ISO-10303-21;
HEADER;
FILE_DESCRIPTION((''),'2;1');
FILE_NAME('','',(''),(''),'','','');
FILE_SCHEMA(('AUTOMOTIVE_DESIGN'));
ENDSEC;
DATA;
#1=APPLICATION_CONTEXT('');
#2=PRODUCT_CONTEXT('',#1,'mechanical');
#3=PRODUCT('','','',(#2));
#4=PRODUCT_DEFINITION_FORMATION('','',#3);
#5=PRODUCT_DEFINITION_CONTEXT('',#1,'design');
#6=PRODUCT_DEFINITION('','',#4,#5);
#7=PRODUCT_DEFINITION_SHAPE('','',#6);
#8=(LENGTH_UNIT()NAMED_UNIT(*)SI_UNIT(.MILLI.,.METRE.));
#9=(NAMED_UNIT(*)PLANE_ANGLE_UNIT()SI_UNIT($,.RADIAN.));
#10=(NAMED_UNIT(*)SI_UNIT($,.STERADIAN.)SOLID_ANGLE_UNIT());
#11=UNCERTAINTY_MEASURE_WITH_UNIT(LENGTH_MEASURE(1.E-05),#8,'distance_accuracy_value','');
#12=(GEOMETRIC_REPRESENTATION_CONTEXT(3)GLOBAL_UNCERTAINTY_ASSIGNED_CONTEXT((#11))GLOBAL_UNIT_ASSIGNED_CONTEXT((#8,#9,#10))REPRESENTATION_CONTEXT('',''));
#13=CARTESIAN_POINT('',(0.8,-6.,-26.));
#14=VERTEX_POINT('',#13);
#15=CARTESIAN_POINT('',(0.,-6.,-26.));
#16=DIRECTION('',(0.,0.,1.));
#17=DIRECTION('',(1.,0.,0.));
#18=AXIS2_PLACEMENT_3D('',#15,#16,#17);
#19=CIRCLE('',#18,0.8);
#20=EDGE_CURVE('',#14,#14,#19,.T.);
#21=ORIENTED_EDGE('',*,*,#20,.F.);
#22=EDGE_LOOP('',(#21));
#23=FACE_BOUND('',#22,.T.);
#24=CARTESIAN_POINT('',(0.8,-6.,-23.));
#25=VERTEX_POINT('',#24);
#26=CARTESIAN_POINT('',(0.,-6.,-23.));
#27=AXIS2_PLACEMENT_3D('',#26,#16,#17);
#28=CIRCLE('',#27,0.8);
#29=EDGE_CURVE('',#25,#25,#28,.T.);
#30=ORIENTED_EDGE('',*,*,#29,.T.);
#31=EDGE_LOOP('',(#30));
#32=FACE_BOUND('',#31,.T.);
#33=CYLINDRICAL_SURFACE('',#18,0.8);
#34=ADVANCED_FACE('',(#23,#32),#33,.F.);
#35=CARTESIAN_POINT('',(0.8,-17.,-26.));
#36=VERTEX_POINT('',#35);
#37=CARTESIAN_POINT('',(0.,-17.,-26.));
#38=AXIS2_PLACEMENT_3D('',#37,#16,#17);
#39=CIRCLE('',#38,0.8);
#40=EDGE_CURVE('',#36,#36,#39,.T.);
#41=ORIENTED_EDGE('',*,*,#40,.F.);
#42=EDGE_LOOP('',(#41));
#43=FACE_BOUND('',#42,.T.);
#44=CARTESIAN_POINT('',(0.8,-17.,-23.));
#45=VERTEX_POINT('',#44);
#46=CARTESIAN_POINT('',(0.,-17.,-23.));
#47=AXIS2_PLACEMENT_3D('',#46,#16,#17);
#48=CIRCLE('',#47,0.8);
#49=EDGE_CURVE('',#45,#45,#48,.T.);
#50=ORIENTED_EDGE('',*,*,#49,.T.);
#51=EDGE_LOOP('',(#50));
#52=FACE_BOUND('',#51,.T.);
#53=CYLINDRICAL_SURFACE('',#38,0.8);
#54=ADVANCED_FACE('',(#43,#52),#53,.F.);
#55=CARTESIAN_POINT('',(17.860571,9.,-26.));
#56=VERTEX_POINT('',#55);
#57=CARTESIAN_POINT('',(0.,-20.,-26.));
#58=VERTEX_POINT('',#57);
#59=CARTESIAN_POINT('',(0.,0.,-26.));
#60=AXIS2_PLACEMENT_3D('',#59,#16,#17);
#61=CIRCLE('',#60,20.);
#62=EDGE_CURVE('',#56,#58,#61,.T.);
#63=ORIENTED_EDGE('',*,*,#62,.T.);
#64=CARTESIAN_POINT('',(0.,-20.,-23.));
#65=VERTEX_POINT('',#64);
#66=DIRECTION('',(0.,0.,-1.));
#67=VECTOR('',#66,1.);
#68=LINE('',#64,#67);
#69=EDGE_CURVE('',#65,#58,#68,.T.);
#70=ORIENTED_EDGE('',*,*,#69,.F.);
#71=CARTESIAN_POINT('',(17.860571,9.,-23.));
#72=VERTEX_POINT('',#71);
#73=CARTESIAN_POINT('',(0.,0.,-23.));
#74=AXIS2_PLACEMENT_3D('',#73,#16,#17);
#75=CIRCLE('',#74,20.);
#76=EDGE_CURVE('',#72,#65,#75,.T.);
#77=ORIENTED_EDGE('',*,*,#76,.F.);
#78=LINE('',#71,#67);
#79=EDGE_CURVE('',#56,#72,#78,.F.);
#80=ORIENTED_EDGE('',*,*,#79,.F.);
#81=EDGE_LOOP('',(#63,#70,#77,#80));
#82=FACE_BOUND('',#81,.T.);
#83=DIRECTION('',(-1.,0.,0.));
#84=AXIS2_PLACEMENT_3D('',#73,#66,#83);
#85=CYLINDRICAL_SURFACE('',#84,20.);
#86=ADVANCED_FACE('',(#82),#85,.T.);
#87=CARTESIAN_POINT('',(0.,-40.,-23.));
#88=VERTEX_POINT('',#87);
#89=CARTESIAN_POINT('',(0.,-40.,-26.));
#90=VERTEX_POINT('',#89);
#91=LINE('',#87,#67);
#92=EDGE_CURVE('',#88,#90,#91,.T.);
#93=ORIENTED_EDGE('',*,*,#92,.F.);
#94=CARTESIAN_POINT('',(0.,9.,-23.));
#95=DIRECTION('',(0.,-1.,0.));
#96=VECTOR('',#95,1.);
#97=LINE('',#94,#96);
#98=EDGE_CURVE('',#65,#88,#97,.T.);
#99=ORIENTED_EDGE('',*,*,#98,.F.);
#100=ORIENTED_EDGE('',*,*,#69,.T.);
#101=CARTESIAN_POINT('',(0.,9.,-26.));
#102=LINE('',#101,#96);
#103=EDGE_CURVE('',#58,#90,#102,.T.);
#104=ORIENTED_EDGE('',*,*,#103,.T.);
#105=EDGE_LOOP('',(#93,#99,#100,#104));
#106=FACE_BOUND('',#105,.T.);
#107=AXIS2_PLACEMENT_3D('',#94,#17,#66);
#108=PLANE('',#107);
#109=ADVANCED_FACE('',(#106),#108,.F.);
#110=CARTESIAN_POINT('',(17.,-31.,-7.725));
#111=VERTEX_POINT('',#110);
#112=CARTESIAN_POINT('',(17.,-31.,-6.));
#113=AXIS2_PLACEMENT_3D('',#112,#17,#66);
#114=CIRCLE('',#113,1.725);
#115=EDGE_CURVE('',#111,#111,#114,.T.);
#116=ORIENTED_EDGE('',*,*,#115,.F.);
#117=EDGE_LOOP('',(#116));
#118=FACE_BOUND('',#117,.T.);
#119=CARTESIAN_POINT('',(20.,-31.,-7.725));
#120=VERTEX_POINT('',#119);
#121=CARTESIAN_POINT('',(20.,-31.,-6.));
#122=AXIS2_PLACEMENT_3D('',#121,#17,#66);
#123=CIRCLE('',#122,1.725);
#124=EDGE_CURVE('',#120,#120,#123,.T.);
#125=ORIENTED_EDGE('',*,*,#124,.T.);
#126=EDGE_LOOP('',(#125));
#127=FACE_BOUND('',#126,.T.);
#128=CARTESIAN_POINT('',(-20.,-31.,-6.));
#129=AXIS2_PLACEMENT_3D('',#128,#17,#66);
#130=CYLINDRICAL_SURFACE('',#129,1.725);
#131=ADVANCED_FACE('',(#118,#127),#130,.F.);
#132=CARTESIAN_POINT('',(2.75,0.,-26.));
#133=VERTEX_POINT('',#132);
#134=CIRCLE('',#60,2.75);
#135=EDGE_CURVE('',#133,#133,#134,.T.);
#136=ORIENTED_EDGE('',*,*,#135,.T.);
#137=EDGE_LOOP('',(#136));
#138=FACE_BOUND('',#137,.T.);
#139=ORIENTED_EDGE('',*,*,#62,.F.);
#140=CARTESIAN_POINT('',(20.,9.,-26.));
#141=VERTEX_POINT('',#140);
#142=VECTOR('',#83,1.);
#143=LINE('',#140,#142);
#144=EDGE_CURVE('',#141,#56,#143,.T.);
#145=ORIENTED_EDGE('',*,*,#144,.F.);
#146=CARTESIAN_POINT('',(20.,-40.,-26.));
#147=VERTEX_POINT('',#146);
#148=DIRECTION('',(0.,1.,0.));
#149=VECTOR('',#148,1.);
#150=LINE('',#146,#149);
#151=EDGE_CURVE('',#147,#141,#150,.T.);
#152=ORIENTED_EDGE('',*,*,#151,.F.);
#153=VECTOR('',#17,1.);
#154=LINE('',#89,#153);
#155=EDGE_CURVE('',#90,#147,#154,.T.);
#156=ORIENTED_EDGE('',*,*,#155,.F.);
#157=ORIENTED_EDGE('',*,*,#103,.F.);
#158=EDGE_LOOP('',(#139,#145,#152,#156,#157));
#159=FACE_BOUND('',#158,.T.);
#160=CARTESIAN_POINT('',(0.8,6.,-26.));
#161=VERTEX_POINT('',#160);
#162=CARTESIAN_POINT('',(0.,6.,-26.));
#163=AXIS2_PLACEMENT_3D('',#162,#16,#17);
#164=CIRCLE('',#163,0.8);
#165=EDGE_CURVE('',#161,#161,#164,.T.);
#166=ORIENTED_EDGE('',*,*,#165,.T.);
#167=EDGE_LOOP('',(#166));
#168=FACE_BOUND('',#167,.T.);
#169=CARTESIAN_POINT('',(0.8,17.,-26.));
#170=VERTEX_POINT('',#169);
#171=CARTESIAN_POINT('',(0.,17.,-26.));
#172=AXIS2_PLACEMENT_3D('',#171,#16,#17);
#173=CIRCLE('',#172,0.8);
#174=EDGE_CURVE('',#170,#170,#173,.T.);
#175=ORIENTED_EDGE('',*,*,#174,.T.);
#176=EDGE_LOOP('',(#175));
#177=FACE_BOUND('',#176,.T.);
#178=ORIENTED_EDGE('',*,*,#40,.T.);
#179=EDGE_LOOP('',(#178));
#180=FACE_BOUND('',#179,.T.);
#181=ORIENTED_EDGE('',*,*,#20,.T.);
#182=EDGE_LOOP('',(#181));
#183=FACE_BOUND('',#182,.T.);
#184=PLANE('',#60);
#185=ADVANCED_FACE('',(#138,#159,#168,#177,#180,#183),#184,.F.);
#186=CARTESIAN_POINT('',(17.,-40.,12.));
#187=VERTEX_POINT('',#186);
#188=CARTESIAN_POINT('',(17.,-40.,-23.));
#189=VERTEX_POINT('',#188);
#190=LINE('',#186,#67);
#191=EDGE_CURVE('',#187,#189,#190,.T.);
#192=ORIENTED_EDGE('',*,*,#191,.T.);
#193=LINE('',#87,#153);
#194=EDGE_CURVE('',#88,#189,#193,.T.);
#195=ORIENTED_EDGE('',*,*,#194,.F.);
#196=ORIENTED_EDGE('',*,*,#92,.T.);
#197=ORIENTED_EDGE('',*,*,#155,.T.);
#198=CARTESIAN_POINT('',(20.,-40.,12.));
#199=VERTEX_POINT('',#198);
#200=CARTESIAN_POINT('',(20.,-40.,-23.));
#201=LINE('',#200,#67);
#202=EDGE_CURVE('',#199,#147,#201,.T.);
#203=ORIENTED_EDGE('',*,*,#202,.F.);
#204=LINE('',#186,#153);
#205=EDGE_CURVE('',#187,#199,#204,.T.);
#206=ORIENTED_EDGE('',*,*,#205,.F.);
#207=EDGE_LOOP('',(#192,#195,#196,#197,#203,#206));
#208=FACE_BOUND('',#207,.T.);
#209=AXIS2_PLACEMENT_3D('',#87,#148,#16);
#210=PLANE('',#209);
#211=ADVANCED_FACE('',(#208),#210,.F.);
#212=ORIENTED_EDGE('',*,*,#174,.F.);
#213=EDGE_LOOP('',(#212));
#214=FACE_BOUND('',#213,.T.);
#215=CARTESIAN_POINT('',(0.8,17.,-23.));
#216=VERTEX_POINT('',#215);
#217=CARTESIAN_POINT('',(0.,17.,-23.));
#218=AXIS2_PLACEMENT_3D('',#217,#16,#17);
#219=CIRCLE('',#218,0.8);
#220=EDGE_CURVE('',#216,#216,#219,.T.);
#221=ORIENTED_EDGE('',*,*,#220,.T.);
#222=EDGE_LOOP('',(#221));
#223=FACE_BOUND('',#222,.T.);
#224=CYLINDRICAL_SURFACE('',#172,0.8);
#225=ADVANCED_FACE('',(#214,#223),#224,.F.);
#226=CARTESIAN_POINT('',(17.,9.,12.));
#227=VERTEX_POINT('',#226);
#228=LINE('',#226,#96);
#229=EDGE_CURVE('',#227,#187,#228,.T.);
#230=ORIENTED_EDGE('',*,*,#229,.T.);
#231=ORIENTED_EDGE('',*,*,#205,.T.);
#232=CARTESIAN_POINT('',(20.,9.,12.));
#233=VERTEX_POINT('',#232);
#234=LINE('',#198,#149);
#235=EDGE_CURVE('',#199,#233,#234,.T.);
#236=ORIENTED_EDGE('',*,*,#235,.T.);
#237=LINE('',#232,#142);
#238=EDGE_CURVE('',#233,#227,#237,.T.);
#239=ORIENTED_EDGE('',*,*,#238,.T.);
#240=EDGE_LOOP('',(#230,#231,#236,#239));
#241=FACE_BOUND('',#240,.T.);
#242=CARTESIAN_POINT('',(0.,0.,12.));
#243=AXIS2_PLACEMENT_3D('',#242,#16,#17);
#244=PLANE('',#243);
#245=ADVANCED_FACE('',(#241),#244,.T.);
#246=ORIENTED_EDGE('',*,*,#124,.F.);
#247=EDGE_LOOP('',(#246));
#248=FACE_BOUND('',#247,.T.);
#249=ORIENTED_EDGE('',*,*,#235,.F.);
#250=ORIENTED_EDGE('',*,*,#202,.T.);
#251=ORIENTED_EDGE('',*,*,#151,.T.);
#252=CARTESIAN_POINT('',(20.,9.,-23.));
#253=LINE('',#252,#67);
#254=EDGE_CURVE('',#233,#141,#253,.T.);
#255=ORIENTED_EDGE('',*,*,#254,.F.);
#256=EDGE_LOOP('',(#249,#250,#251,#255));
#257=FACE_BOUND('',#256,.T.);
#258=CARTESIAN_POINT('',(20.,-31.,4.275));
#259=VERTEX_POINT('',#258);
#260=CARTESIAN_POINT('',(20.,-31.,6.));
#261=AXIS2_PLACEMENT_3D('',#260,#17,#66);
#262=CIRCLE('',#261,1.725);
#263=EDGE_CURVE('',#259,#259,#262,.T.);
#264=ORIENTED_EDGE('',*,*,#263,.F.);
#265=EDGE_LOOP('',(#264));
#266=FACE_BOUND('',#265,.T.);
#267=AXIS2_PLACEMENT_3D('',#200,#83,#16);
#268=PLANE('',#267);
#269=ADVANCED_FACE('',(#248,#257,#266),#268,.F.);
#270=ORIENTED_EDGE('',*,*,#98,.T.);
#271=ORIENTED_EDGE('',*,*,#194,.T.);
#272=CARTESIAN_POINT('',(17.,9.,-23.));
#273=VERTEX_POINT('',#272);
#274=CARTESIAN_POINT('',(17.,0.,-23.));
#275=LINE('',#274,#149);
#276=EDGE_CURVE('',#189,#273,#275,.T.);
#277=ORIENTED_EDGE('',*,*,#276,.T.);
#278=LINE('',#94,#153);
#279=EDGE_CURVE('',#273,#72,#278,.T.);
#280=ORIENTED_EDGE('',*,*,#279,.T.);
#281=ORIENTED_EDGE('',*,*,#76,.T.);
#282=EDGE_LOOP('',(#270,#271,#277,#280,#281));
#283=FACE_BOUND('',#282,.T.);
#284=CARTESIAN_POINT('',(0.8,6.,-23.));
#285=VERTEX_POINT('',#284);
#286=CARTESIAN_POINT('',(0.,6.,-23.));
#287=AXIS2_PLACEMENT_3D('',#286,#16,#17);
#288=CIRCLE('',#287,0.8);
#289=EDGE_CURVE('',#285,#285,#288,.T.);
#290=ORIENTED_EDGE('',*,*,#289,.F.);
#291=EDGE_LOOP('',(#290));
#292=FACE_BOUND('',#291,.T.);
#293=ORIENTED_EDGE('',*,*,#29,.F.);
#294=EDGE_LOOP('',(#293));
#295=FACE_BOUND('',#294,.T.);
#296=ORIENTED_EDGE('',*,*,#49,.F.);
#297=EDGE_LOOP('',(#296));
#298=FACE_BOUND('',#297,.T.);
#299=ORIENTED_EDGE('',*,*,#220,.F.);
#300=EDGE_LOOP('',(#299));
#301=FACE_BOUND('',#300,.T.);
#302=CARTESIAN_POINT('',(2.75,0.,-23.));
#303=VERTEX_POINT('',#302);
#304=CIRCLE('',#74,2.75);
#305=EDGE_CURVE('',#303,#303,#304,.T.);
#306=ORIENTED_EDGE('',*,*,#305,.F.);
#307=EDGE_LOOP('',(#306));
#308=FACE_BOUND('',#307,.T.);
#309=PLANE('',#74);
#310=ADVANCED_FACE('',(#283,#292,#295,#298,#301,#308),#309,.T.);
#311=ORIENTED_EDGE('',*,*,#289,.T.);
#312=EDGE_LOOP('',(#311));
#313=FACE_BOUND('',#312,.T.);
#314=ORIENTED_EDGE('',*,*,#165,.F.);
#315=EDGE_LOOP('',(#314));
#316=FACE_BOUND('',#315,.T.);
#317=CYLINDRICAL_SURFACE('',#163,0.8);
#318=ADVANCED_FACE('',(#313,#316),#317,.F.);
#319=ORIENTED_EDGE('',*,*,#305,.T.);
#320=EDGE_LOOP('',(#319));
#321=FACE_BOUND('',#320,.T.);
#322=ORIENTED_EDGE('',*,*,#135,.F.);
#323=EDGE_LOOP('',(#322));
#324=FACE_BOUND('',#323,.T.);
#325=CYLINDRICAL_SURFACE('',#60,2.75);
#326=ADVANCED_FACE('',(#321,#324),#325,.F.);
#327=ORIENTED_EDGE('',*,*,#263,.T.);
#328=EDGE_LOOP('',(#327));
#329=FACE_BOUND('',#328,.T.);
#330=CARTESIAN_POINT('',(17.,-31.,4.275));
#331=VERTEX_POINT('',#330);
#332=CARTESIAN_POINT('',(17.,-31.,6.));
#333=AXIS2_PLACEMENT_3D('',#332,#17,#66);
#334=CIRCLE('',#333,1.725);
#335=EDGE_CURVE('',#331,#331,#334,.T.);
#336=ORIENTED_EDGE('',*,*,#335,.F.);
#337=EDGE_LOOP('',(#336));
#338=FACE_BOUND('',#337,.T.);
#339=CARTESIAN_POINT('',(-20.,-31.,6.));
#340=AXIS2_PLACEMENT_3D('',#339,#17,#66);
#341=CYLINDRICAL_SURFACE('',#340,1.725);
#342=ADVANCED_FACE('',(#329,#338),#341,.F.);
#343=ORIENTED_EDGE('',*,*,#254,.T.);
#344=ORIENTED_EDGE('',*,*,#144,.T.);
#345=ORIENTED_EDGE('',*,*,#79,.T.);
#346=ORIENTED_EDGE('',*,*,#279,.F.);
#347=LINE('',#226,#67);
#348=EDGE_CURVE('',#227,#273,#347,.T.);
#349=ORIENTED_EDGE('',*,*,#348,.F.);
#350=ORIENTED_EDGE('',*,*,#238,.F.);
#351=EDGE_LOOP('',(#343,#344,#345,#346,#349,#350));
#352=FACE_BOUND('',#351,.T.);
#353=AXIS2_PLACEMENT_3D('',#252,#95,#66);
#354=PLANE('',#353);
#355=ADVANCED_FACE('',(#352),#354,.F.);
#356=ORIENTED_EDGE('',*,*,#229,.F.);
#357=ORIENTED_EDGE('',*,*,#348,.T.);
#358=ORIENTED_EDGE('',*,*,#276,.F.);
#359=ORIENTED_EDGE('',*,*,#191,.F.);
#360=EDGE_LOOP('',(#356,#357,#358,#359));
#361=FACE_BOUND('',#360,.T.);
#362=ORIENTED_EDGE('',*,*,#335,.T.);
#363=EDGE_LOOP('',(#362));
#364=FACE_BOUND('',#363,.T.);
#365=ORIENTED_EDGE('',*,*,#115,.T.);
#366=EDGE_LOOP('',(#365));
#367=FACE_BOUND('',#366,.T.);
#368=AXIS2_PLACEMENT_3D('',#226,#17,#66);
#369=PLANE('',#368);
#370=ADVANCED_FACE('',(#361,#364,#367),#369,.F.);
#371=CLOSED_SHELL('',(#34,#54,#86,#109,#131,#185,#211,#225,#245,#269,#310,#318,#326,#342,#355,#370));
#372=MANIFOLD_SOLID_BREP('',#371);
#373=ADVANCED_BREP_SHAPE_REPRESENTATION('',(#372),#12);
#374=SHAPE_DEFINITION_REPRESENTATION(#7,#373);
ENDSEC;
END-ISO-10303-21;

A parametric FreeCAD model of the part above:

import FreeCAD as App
import Part
import Sketcher
from FreeCAD import Vector

doc = App.newDocument("Part")
body = doc.addObject("PartDesign::Body", "Body")

# Sketch on XY plane
sketch1 = body.newObject("Sketcher::SketchObject", "Sketch")
sketch1.AttachmentSupport = (doc.getObject("XY_Plane"), [""])
sketch1.MapMode = "FlatFace"
sketch1.AttachmentOffset = App.Placement(Vector(0, 0, -26), App.Rotation())
sketch1.addGeometry(Part.Circle(Vector(0, 0, 0), Vector(0, 0, 1), 20), False)
sketch1.addConstraint([
    Sketcher.Constraint("Coincident", 0, 3, -1, 1),
    Sketcher.Constraint("Diameter", 0, 40.0),
])
pad1 = body.newObject("PartDesign::Pad", "Pad")
pad1.Profile = sketch1
pad1.Length = 3

# Sketch on XY plane
sketch2 = body.newObject("Sketcher::SketchObject", "Sketch001")
sketch2.AttachmentSupport = (doc.getObject("XY_Plane"), [""])
sketch2.MapMode = "FlatFace"
sketch2.AttachmentOffset = App.Placement(Vector(0, 0, -26), App.Rotation())
sketch2.addGeometry([
    Part.LineSegment(Vector(0, 9, 0), Vector(0, -40, 0)),
    Part.LineSegment(Vector(0, -40, 0), Vector(20, -40, 0)),
    Part.LineSegment(Vector(20, -40, 0), Vector(20, 9, 0)),
    Part.LineSegment(Vector(20, 9, 0), Vector(0, 9, 0)),
], False)
sketch2.addConstraint([
    Sketcher.Constraint("Coincident", 0, 2, 1, 1),
    Sketcher.Constraint("Coincident", 1, 2, 2, 1),
    Sketcher.Constraint("Coincident", 2, 2, 3, 1),
    Sketcher.Constraint("Coincident", 3, 2, 0, 1),
    Sketcher.Constraint("Vertical", 0),
    Sketcher.Constraint("Horizontal", 1),
    Sketcher.Constraint("Vertical", 2),
    Sketcher.Constraint("Horizontal", 3),
    Sketcher.Constraint("PointOnObject", 0, 2, -2),
    Sketcher.Constraint("DistanceX", 1, 1, 1, 2, 20.0),
    Sketcher.Constraint("DistanceY", 0, 2, 0, 1, 49.0),
    Sketcher.Constraint("DistanceY", 0, 2, -1, 1, 40.0),
])
pad2 = body.newObject("PartDesign::Pad", "Pad001")
pad2.Profile = sketch2
pad2.Length = 3

# Sketch on XY plane
sketch3 = body.newObject("Sketcher::SketchObject", "Sketch002")
sketch3.AttachmentSupport = (doc.getObject("XY_Plane"), [""])
sketch3.MapMode = "FlatFace"
sketch3.AttachmentOffset = App.Placement(Vector(0, 0, -26), App.Rotation())
sketch3.addGeometry([
    Part.LineSegment(Vector(17, 9, 0), Vector(17, -40, 0)),
    Part.LineSegment(Vector(17, -40, 0), Vector(20, -40, 0)),
    Part.LineSegment(Vector(20, -40, 0), Vector(20, 9, 0)),
    Part.LineSegment(Vector(20, 9, 0), Vector(17, 9, 0)),
], False)
sketch3.addConstraint([
    Sketcher.Constraint("Coincident", 0, 2, 1, 1),
    Sketcher.Constraint("Coincident", 1, 2, 2, 1),
    Sketcher.Constraint("Coincident", 2, 2, 3, 1),
    Sketcher.Constraint("Coincident", 3, 2, 0, 1),
    Sketcher.Constraint("Vertical", 0),
    Sketcher.Constraint("Horizontal", 1),
    Sketcher.Constraint("Vertical", 2),
    Sketcher.Constraint("Horizontal", 3),
    Sketcher.Constraint("DistanceX", 1, 1, 1, 2, 3.0),
    Sketcher.Constraint("DistanceY", 0, 2, 0, 1, 49.0),
    Sketcher.Constraint("DistanceX", -1, 1, 0, 2, 17.0),
    Sketcher.Constraint("DistanceY", 0, 2, -1, 1, 40.0),
])
pad3 = body.newObject("PartDesign::Pad", "Pad002")
pad3.Profile = sketch3
pad3.Length = 38

# Sketch on XY plane
sketch4 = body.newObject("Sketcher::SketchObject", "Sketch003")
sketch4.AttachmentSupport = (doc.getObject("XY_Plane"), [""])
sketch4.MapMode = "FlatFace"
sketch4.addGeometry([
    Part.Circle(Vector(0, 0, 0), Vector(0, 0, 1), 2.75),  # 0
    Part.Circle(Vector(0, 6, 0), Vector(0, 0, 1), 0.8),  # 1
    Part.Circle(Vector(0, -6, 0), Vector(0, 0, 1), 0.8),  # 2
    Part.Circle(Vector(0, 17, 0), Vector(0, 0, 1), 0.8),  # 3
    Part.Circle(Vector(0, -17, 0), Vector(0, 0, 1), 0.8),  # 4
], False)
sketch4.addConstraint([
    Sketcher.Constraint("Coincident", 0, 3, -1, 1),
    Sketcher.Constraint("Equal", 1, 2),
    Sketcher.Constraint("Equal", 2, 3),
    Sketcher.Constraint("Equal", 3, 4),
    Sketcher.Constraint("Symmetric", 1, 3, 2, 3, -1, 1),
    Sketcher.Constraint("Symmetric", 3, 3, 4, 3, -1, 1),
    Sketcher.Constraint("PointOnObject", 1, 3, -2),
    Sketcher.Constraint("PointOnObject", 3, 3, -2),
    Sketcher.Constraint("Diameter", 0, 5.5),
    Sketcher.Constraint("Diameter", 1, 1.6),
    Sketcher.Constraint("DistanceY", -1, 1, 1, 3, 6.0),
    Sketcher.Constraint("DistanceY", -1, 1, 3, 3, 17.0),
])
pocket1 = body.newObject("PartDesign::Pocket", "Pocket")
pocket1.Profile = sketch4
pocket1.Type = "ThroughAll"
pocket1.Midplane = True

# Sketch on YZ plane
sketch5 = body.newObject("Sketcher::SketchObject", "Sketch004")
sketch5.AttachmentSupport = (doc.getObject("YZ_Plane"), [""])
sketch5.MapMode = "FlatFace"
sketch5.addGeometry([
    Part.Circle(Vector(-31, 6, 0), Vector(0, 0, 1), 1.725),
    Part.Circle(Vector(-31, -6, 0), Vector(0, 0, 1), 1.725),
], False)
sketch5.addConstraint([
    Sketcher.Constraint("Equal", 0, 1),
    Sketcher.Constraint("Symmetric", 0, 3, 1, 3, -1),
    Sketcher.Constraint("Diameter", 0, 3.45),
    Sketcher.Constraint("DistanceX", 0, 3, -1, 1, 31.0),
    Sketcher.Constraint("DistanceY", -1, 1, 0, 3, 6.0),
])
pocket2 = body.newObject("PartDesign::Pocket", "Pocket001")
pocket2.Profile = sketch5
pocket2.Type = "ThroughAll"
pocket2.Midplane = True

doc.recompute()
